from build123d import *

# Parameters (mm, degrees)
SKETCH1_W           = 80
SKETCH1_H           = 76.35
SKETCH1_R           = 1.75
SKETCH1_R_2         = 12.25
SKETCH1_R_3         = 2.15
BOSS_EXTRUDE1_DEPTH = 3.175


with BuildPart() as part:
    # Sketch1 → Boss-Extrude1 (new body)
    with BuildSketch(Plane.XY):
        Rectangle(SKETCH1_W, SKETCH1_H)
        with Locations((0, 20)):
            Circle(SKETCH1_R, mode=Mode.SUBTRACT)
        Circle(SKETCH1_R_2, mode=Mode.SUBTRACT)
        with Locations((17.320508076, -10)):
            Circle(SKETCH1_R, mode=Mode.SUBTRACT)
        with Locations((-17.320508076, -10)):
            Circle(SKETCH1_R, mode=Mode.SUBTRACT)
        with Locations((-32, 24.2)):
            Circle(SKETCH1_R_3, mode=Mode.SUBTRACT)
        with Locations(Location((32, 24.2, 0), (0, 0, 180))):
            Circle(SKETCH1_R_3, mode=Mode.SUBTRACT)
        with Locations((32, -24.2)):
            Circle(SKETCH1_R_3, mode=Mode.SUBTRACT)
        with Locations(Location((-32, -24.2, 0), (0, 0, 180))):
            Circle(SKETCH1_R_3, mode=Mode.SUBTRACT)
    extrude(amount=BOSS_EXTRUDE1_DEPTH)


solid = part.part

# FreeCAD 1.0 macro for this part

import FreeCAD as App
import Part
import Sketcher
from FreeCAD import Vector
Q = App.Units.Quantity

doc = App.newDocument("Part")
body = doc.addObject("PartDesign::Body", "Body")

# Sketch on XY plane
sketch1 = body.newObject("Sketcher::SketchObject", "Sketch")
sketch1.AttachmentSupport = (doc.getObject("XY_Plane"), [""])
sketch1.MapMode = "FlatFace"
sketch1.addGeometry([
    Part.LineSegment(Vector(-40, 38.175, 0), Vector(-40, -38.175, 0)),  # 0
    Part.LineSegment(Vector(-40, -38.175, 0), Vector(40, -38.175, 0)),  # 1
    Part.LineSegment(Vector(40, -38.175, 0), Vector(40, 38.175, 0)),  # 2
    Part.LineSegment(Vector(40, 38.175, 0), Vector(-40, 38.175, 0)),  # 3
    Part.Circle(Vector(-32, -24.2, 0), Vector(0, 0, 1), 2.15),  # 4
    Part.Circle(Vector(-17.320508, -10, 0), Vector(0, 0, 1), 1.75),  # 5
    Part.Circle(Vector(32, -24.2, 0), Vector(0, 0, 1), 2.15),  # 6
    Part.Circle(Vector(17.320508, -10, 0), Vector(0, 0, 1), 1.75),  # 7
    Part.Circle(Vector(-32, 24.2, 0), Vector(0, 0, 1), 2.15),  # 8
    Part.Circle(Vector(0, 0, 0), Vector(0, 0, 1), 12.25),  # 9
    Part.Circle(Vector(0, 20, 0), Vector(0, 0, 1), 1.75),  # 10
    Part.Circle(Vector(32, 24.2, 0), Vector(0, 0, 1), 2.15),  # 11
], False)
sketch1.addConstraint([
    Sketcher.Constraint("Coincident", 0, 2, 1, 1),
    Sketcher.Constraint("Coincident", 1, 2, 2, 1),
    Sketcher.Constraint("Coincident", 2, 2, 3, 1),
    Sketcher.Constraint("Coincident", 3, 2, 0, 1),
    Sketcher.Constraint("Vertical", 0),
    Sketcher.Constraint("Horizontal", 1),
    Sketcher.Constraint("Vertical", 2),
    Sketcher.Constraint("Horizontal", 3),
    Sketcher.Constraint("Coincident", 9, 3, -1, 1),
    Sketcher.Constraint("Equal", 4, 6),
    Sketcher.Constraint("Equal", 5, 7),
    Sketcher.Constraint("Equal", 6, 8),
    Sketcher.Constraint("Equal", 7, 10),
    Sketcher.Constraint("Equal", 8, 11),
    Sketcher.Constraint("Symmetric", 6, 3, 8, 3, -1, 1),
    Sketcher.Constraint("Symmetric", 4, 3, 11, 3, -1, 1),
    Sketcher.Constraint("Symmetric", 0, 2, 2, 2, -1, 1),
    Sketcher.Constraint("Symmetric", 4, 3, 6, 3, -2),
    Sketcher.Constraint("Symmetric", 5, 3, 7, 3, -2),
    Sketcher.Constraint("PointOnObject", 10, 3, -2),
    Sketcher.Constraint("Diameter", 4, Q("4.3 mm")),
    Sketcher.Constraint("Diameter", 5, Q("3.5 mm")),
    Sketcher.Constraint("Diameter", 9, Q("24.5 mm")),
    Sketcher.Constraint("DistanceX", 1, 1, 1, 2, Q("80 mm")),
    Sketcher.Constraint("DistanceX", 4, 3, -1, 1, Q("32 mm")),
    Sketcher.Constraint("DistanceY", 5, 3, -1, 1, Q("10 mm")),
    Sketcher.Constraint("DistanceY", -1, 1, 10, 3, Q("20 mm")),
    Sketcher.Constraint("DistanceY", 0, 2, 0, 1, Q("76.35 mm")),
    Sketcher.Constraint("DistanceY", 4, 3, -1, 1, Q("24.2 mm")),
    Sketcher.Constraint("DistanceX", 5, 3, -1, 1, Q("17.320508 mm")),
])
pad1 = body.newObject("PartDesign::Pad", "Pad")
pad1.Profile = sketch1
pad1.Length = 3.175

doc.recompute()
